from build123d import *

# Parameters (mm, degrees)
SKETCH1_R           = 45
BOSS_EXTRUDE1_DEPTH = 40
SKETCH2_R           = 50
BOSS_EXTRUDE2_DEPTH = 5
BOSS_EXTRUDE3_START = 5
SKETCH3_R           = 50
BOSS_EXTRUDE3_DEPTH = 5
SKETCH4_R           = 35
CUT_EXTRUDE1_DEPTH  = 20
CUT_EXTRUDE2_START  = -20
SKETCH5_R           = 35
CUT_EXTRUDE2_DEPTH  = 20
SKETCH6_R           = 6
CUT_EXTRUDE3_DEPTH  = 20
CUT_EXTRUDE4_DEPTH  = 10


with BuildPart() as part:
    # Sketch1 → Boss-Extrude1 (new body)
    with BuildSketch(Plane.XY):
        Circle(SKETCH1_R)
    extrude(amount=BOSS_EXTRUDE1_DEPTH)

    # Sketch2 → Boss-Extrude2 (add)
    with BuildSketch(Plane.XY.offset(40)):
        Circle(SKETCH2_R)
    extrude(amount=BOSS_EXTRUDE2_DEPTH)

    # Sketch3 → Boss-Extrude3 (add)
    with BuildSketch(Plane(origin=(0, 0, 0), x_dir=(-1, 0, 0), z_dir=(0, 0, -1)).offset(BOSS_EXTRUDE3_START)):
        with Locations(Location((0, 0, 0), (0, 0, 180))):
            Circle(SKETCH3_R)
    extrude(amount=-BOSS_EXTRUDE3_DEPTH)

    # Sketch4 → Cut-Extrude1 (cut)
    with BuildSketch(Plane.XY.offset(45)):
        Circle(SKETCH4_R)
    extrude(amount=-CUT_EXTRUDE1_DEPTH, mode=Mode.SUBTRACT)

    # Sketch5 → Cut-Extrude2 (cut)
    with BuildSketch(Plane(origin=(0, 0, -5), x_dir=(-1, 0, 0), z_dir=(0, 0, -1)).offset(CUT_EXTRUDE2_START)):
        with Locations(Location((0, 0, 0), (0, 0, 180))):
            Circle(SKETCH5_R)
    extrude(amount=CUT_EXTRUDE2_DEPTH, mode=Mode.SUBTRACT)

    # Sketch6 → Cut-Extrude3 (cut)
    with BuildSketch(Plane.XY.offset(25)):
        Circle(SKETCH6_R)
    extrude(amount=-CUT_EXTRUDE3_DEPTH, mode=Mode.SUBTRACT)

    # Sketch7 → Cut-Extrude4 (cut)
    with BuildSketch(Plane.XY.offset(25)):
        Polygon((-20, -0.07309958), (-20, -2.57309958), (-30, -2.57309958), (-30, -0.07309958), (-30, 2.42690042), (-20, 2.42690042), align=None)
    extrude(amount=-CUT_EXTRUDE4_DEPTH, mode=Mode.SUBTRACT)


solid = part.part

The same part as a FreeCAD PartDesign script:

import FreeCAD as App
import Part
import Sketcher
from FreeCAD import Vector


def add_polygon(sketch, points):
    """Adds a closed chain of lines whose ends are joined by coincident constraints."""
    first, n = sketch.GeometryCount, len(points)
    for a, b in zip(points, points[1:] + points[:1]):
        sketch.addGeometry(Part.LineSegment(App.Vector(*a, 0), App.Vector(*b, 0)), False)
    for i in range(n):
        sketch.addConstraint(Sketcher.Constraint("Coincident", first + i, 2, first + (i + 1) % n, 1))

doc = App.newDocument("Part")
body = doc.addObject("PartDesign::Body", "Body")

sketch1 = body.newObject("Sketcher::SketchObject", "Sketch")
sketch1.AttachmentSupport = (doc.getObject("XY_Plane"), [""])
sketch1.MapMode = "FlatFace"
sketch1.addGeometry(Part.Circle(Vector(0, 0, 0), Vector(0, 0, 1), 45), False)
sketch1.addConstraint(Sketcher.Constraint("Coincident", 0, 3, -1, 1))
sketch1.addConstraint(Sketcher.Constraint("Diameter", 0, 90.0))
pad1 = body.newObject("PartDesign::Pad", "Pad")
pad1.Profile = sketch1
pad1.Length = 40

sketch2 = body.newObject("Sketcher::SketchObject", "Sketch001")
sketch2.AttachmentSupport = (doc.getObject("XY_Plane"), [""])
sketch2.MapMode = "FlatFace"
sketch2.AttachmentOffset = App.Placement(Vector(0, 0, 40), App.Rotation())
sketch2.addGeometry(Part.Circle(Vector(0, 0, 0), Vector(0, 0, 1), 50), False)
sketch2.addConstraint(Sketcher.Constraint("Coincident", 0, 3, -1, 1))
sketch2.addConstraint(Sketcher.Constraint("Diameter", 0, 100.0))
pad2 = body.newObject("PartDesign::Pad", "Pad001")
pad2.Profile = sketch2
pad2.Length = 5

sketch3 = body.newObject("Sketcher::SketchObject", "Sketch002")
sketch3.AttachmentSupport = (doc.getObject("XY_Plane"), [""])
sketch3.MapMode = "FlatFace"
sketch3.AttachmentOffset = App.Placement(Vector(0, 0, -5), App.Rotation())
sketch3.addGeometry(Part.Circle(Vector(0, 0, 0), Vector(0, 0, 1), 50), False)
sketch3.addConstraint(Sketcher.Constraint("Coincident", 0, 3, -1, 1))
sketch3.addConstraint(Sketcher.Constraint("Diameter", 0, 100.0))
pad3 = body.newObject("PartDesign::Pad", "Pad002")
pad3.Profile = sketch3
pad3.Length = 5

sketch4 = body.newObject("Sketcher::SketchObject", "Sketch003")
sketch4.AttachmentSupport = (doc.getObject("XY_Plane"), [""])
sketch4.MapMode = "FlatFace"
sketch4.AttachmentOffset = App.Placement(Vector(0, 0, 45), App.Rotation())
sketch4.addGeometry(Part.Circle(Vector(0, 0, 0), Vector(0, 0, 1), 35), False)
sketch4.addConstraint(Sketcher.Constraint("Coincident", 0, 3, -1, 1))
sketch4.addConstraint(Sketcher.Constraint("Diameter", 0, 70.0))
pocket1 = body.newObject("PartDesign::Pocket", "Pocket")
pocket1.Profile = sketch4
pocket1.Length = 20

sketch5 = body.newObject("Sketcher::SketchObject", "Sketch004")
sketch5.AttachmentSupport = (doc.getObject("XY_Plane"), [""])
sketch5.MapMode = "FlatFace"
sketch5.AttachmentOffset = App.Placement(Vector(0, 0, 15), App.Rotation())
sketch5.addGeometry(Part.Circle(Vector(0, 0, 0), Vector(0, 0, 1), 35), False)
sketch5.addConstraint(Sketcher.Constraint("Coincident", 0, 3, -1, 1))
sketch5.addConstraint(Sketcher.Constraint("Diameter", 0, 70.0))
pocket2 = body.newObject("PartDesign::Pocket", "Pocket001")
pocket2.Profile = sketch5
pocket2.Length = 20

sketch6 = body.newObject("Sketcher::SketchObject", "Sketch005")
sketch6.AttachmentSupport = (doc.getObject("XY_Plane"), [""])
sketch6.MapMode = "FlatFace"
sketch6.AttachmentOffset = App.Placement(Vector(0, 0, 25), App.Rotation())
sketch6.addGeometry(Part.Circle(Vector(0, 0, 0), Vector(0, 0, 1), 6), False)
sketch6.addConstraint(Sketcher.Constraint("Coincident", 0, 3, -1, 1))
sketch6.addConstraint(Sketcher.Constraint("Diameter", 0, 12.0))
pocket3 = body.newObject("PartDesign::Pocket", "Pocket002")
pocket3.Profile = sketch6
pocket3.Length = 20

sketch7 = body.newObject("Sketcher::SketchObject", "Sketch006")
sketch7.AttachmentSupport = (doc.getObject("XY_Plane"), [""])
sketch7.MapMode = "FlatFace"
sketch7.AttachmentOffset = App.Placement(Vector(0, 0, 25), App.Rotation())
add_polygon(sketch7, [(-20, -2.5731), (-20, 2.4269), (-30, 2.4269), (-30, -2.5731)])
sketch7.addConstraint(Sketcher.Constraint("Vertical", 0))
sketch7.addConstraint(Sketcher.Constraint("Horizontal", 1))
sketch7.addConstraint(Sketcher.Constraint("Vertical", 2))
sketch7.addConstraint(Sketcher.Constraint("Horizontal", 3))
sketch7.addConstraint(Sketcher.Constraint("DistanceX", 1, 2, 1, 1, 10.0))
sketch7.addConstraint(Sketcher.Constraint("DistanceY", 0, 1, 0, 2, 5.0))
sketch7.addConstraint(Sketcher.Constraint("DistanceX", 0, 2, -1, 1, 20.0))
sketch7.addConstraint(Sketcher.Constraint("DistanceY", -1, 1, 0, 2, 2.4269))
pocket4 = body.newObject("PartDesign::Pocket", "Pocket003")
pocket4.Profile = sketch7
pocket4.Length = 10

doc.recompute()
